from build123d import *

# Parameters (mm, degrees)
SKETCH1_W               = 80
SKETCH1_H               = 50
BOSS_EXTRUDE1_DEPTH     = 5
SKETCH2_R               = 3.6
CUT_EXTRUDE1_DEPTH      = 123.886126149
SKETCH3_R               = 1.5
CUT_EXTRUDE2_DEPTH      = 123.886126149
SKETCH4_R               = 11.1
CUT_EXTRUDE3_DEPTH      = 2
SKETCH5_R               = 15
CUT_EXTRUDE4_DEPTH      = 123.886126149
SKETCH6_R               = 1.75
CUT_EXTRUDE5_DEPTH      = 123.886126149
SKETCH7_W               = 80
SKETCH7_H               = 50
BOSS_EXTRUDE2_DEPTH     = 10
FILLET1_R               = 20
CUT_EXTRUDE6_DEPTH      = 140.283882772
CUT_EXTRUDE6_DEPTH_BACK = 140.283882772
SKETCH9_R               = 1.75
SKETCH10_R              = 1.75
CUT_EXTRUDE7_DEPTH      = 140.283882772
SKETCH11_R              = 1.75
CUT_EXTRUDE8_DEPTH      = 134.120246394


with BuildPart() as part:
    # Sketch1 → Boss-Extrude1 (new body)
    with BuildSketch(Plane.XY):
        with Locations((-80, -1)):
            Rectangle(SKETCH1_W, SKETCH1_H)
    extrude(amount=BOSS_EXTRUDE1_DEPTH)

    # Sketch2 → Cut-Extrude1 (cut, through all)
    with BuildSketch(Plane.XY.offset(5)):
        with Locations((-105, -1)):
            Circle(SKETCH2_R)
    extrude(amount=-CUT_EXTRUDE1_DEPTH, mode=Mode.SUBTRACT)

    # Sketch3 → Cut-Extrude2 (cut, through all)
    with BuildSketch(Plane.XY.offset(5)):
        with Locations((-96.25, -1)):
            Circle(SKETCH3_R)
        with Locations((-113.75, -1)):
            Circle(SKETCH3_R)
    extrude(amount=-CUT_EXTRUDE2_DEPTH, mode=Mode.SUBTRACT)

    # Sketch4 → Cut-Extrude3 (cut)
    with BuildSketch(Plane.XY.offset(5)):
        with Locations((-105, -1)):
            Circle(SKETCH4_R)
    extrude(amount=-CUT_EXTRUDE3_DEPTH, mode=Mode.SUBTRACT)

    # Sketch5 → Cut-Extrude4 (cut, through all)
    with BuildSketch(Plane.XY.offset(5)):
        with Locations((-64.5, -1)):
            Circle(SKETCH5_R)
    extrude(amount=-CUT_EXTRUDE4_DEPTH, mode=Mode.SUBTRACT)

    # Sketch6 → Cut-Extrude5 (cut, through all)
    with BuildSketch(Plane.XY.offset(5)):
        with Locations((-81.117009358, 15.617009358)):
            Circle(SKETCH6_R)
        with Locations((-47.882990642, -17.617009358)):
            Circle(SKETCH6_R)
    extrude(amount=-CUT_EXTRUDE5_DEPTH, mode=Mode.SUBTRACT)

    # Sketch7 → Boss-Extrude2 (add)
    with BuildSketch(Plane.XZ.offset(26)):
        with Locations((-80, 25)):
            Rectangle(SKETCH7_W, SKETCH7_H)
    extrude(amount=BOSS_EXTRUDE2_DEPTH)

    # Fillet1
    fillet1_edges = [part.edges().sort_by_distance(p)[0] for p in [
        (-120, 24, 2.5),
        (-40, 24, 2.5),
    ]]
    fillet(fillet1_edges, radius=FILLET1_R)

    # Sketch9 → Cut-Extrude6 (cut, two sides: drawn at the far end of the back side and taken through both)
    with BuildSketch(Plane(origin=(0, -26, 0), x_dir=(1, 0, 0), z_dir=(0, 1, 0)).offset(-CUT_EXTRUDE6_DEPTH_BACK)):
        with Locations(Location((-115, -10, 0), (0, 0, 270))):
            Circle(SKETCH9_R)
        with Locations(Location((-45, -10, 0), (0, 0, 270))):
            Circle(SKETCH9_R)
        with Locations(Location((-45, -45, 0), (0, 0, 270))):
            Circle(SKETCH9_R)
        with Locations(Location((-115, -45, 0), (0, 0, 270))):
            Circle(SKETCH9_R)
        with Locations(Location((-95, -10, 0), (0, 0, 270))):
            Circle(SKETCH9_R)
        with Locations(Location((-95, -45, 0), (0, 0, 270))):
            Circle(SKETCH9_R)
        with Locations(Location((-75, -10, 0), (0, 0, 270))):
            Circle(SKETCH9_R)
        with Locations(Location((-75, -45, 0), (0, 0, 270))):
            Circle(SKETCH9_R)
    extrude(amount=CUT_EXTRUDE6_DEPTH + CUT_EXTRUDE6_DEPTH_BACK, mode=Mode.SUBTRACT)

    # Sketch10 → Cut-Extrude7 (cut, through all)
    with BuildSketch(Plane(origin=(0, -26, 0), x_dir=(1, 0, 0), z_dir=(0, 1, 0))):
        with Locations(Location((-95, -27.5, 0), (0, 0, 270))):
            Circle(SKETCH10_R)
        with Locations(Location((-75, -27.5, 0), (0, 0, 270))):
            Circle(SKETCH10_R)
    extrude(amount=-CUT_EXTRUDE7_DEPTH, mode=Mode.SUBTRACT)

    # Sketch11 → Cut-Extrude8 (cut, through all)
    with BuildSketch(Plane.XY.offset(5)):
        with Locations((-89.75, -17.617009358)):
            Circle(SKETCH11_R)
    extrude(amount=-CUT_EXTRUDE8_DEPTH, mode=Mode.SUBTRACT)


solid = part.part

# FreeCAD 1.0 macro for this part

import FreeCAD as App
import Part
import Sketcher
Q = App.Units.Quantity


def edges_at(feature, points):
    """Names of the edges that pass closest to the given points."""
    edges = feature.Shape.Edges
    near = lambda p: min(range(len(edges)), key=lambda i: edges[i].distToShape(Part.Vertex(*p))[0])
    return sorted({f"Edge{near(p) + 1}" for p in points})


def add_polygon(sketch, points):
    """Adds a closed chain of lines whose ends are joined by coincident constraints."""
    first, n = sketch.GeometryCount, len(points)
    for a, b in zip(points, points[1:] + points[:1]):
        sketch.addGeometry(Part.LineSegment(App.Vector(*a, 0), App.Vector(*b, 0)), False)
    for i in range(n):
        sketch.addConstraint(Sketcher.Constraint("Coincident", first + i, 2, first + (i + 1) % n, 1))

doc = App.newDocument("Part")
params = doc.addObject("Spreadsheet::Sheet", "Params")
for row, (alias, value) in enumerate([
    ("sketch1_width", "80 mm"),
    ("sketch1_height", "50 mm"),
    ("pad1_length", "5 mm"),
    ("sketch2_diameter", "7.2 mm"),
    ("sketch3_diameter", "3 mm"),
    ("sketch4_diameter", "22.2 mm"),
    ("pocket3_length", "2 mm"),
    ("sketch5_diameter", "30 mm"),
    ("sketch6_diameter", "3.5 mm"),
    ("sketch7_width", "80 mm"),
    ("sketch7_height", "50 mm"),
    ("pad2_length", "10 mm"),
    ("fillet_radius", "20 mm"),
    ("sketch8_diameter", "3.5 mm"),
    ("sketch9_diameter", "3.5 mm"),
    ("sketch10_diameter", "3.5 mm"),
], start=1):
    params.set(f"A{row}", alias)
    params.set(f"B{row}", "=" + value)
    params.setAlias(f"B{row}", alias)

body = doc.addObject("PartDesign::Body", "Body")

# Sketch on XY plane
sketch1 = body.newObject("Sketcher::SketchObject", "Sketch")
sketch1.AttachmentSupport = (doc.getObject("XY_Plane"), [""])
sketch1.MapMode = "FlatFace"
add_polygon(sketch1, [(-120, 24), (-120, -26), (-40, -26), (-40, 24)])  # lines 0-3
sketch1.addConstraint(Sketcher.Constraint("Vertical", 0))
sketch1.addConstraint(Sketcher.Constraint("Horizontal", 1))
sketch1.addConstraint(Sketcher.Constraint("Vertical", 2))
sketch1.addConstraint(Sketcher.Constraint("Horizontal", 3))
sketch1.addConstraint(Sketcher.Constraint("DistanceX", 1, 1, 1, 2, Q("80 mm")))
sketch1.addConstraint(Sketcher.Constraint("DistanceY", 0, 2, 0, 1, Q("50 mm")))
sketch1.addConstraint(Sketcher.Constraint("DistanceX", 0, 2, -1, 1, Q("120 mm")))
sketch1.addConstraint(Sketcher.Constraint("DistanceY", 0, 2, -1, 1, Q("26 mm")))
sketch1.setExpression("Constraints[8]", "Params.sketch1_width")
sketch1.setExpression("Constraints[9]", "Params.sketch1_height")
pad1 = body.newObject("PartDesign::Pad", "Pad")
pad1.Profile = sketch1
pad1.setExpression("Length", "Params.pad1_length")

# Sketch on XY plane
sketch2 = body.newObject("Sketcher::SketchObject", "Sketch001")
sketch2.AttachmentSupport = (doc.getObject("XY_Plane"), [""])
sketch2.MapMode = "FlatFace"
sketch2.AttachmentOffset = App.Placement(App.Vector(0, 0, 5), App.Rotation())
sketch2.addGeometry(Part.Circle(App.Vector(-105, -1, 0), App.Vector(0, 0, 1), 3.6), False)
sketch2.addConstraint(Sketcher.Constraint("Diameter", 0, Q("7.2 mm")))
sketch2.addConstraint(Sketcher.Constraint("DistanceX", 0, 3, -1, 1, Q("105 mm")))
sketch2.addConstraint(Sketcher.Constraint("DistanceY", 0, 3, -1, 1, Q("1 mm")))
sketch2.setExpression("Constraints[0]", "Params.sketch2_diameter")
pocket1 = body.newObject("PartDesign::Pocket", "Pocket")
pocket1.Profile = sketch2
pocket1.Type = "ThroughAll"

# Sketch on XY plane
sketch3 = body.newObject("Sketcher::SketchObject", "Sketch002")
sketch3.AttachmentSupport = (doc.getObject("XY_Plane"), [""])
sketch3.MapMode = "FlatFace"
sketch3.AttachmentOffset = App.Placement(App.Vector(0, 0, 5), App.Rotation())
sketch3.addGeometry(Part.Circle(App.Vector(-96.25, -1, 0), App.Vector(0, 0, 1), 1.5), False)
sketch3.addGeometry(Part.Circle(App.Vector(-113.75, -1, 0), App.Vector(0, 0, 1), 1.5), False)
sketch3.addConstraint(Sketcher.Constraint("Equal", 0, 1))
sketch3.addConstraint(Sketcher.Constraint("Horizontal", 0, 3, 1, 3))
sketch3.addConstraint(Sketcher.Constraint("Diameter", 0, Q("3 mm")))
sketch3.addConstraint(Sketcher.Constraint("DistanceY", 0, 3, -1, 1, Q("1 mm")))
sketch3.addConstraint(Sketcher.Constraint("DistanceX", 1, 3, 0, 3, Q("17.5 mm")))
sketch3.addConstraint(Sketcher.Constraint("DistanceX", 0, 3, -1, 1, Q("96.25 mm")))
sketch3.setExpression("Constraints[2]", "Params.sketch3_diameter")
pocket2 = body.newObject("PartDesign::Pocket", "Pocket001")
pocket2.Profile = sketch3
pocket2.Type = "ThroughAll"

# Sketch on XY plane
sketch4 = body.newObject("Sketcher::SketchObject", "Sketch003")
sketch4.AttachmentSupport = (doc.getObject("XY_Plane"), [""])
sketch4.MapMode = "FlatFace"
sketch4.AttachmentOffset = App.Placement(App.Vector(0, 0, 5), App.Rotation())
sketch4.addGeometry(Part.Circle(App.Vector(-105, -1, 0), App.Vector(0, 0, 1), 11.1), False)
sketch4.addConstraint(Sketcher.Constraint("Diameter", 0, Q("22.2 mm")))
sketch4.addConstraint(Sketcher.Constraint("DistanceX", 0, 3, -1, 1, Q("105 mm")))
sketch4.addConstraint(Sketcher.Constraint("DistanceY", 0, 3, -1, 1, Q("1 mm")))
sketch4.setExpression("Constraints[0]", "Params.sketch4_diameter")
pocket3 = body.newObject("PartDesign::Pocket", "Pocket002")
pocket3.Profile = sketch4
pocket3.setExpression("Length", "Params.pocket3_length")

# Sketch on XY plane
sketch5 = body.newObject("Sketcher::SketchObject", "Sketch004")
sketch5.AttachmentSupport = (doc.getObject("XY_Plane"), [""])
sketch5.MapMode = "FlatFace"
sketch5.AttachmentOffset = App.Placement(App.Vector(0, 0, 5), App.Rotation())
sketch5.addGeometry(Part.Circle(App.Vector(-64.5, -1, 0), App.Vector(0, 0, 1), 15), False)
sketch5.addConstraint(Sketcher.Constraint("Diameter", 0, Q("30 mm")))
sketch5.addConstraint(Sketcher.Constraint("DistanceY", 0, 3, -1, 1, Q("1 mm")))
sketch5.addConstraint(Sketcher.Constraint("DistanceX", 0, 3, -1, 1, Q("64.5 mm")))
sketch5.setExpression("Constraints[0]", "Params.sketch5_diameter")
pocket4 = body.newObject("PartDesign::Pocket", "Pocket003")
pocket4.Profile = sketch5
pocket4.Type = "ThroughAll"

# Sketch on XY plane
sketch6 = body.newObject("Sketcher::SketchObject", "Sketch005")
sketch6.AttachmentSupport = (doc.getObject("XY_Plane"), [""])
sketch6.MapMode = "FlatFace"
sketch6.AttachmentOffset = App.Placement(App.Vector(0, 0, 5), App.Rotation())
sketch6.addGeometry(Part.Circle(App.Vector(-81.117009, 15.617009, 0), App.Vector(0, 0, 1), 1.75), False)
sketch6.addGeometry(Part.Circle(App.Vector(-47.882991, -17.617009, 0), App.Vector(0, 0, 1), 1.75), False)
sketch6.addConstraint(Sketcher.Constraint("Equal", 0, 1))
sketch6.addConstraint(Sketcher.Constraint("Diameter", 0, Q("3.5 mm")))
sketch6.addConstraint(Sketcher.Constraint("DistanceX", 0, 3, -1, 1, Q("81.117009 mm")))
sketch6.addConstraint(Sketcher.Constraint("DistanceY", -1, 1, 0, 3, Q("15.617009 mm")))
sketch6.addConstraint(Sketcher.Constraint("DistanceX", 1, 3, -1, 1, Q("47.882991 mm")))
sketch6.addConstraint(Sketcher.Constraint("DistanceY", 1, 3, -1, 1, Q("17.617009 mm")))
sketch6.setExpression("Constraints[1]", "Params.sketch6_diameter")
pocket5 = body.newObject("PartDesign::Pocket", "Pocket004")
pocket5.Profile = sketch6
pocket5.Type = "ThroughAll"

# Sketch on XZ plane
sketch7 = body.newObject("Sketcher::SketchObject", "Sketch006")
sketch7.AttachmentSupport = (doc.getObject("XZ_Plane"), [""])
sketch7.MapMode = "FlatFace"
sketch7.AttachmentOffset = App.Placement(App.Vector(0, 0, 26), App.Rotation())
add_polygon(sketch7, [(-120, 50), (-120, 0), (-40, 0), (-40, 50)])  # lines 0-3
sketch7.addConstraint(Sketcher.Constraint("Vertical", 0))
sketch7.addConstraint(Sketcher.Constraint("Horizontal", 1))
sketch7.addConstraint(Sketcher.Constraint("Vertical", 2))
sketch7.addConstraint(Sketcher.Constraint("Horizontal", 3))
sketch7.addConstraint(Sketcher.Constraint("PointOnObject", 0, 2, -1))
sketch7.addConstraint(Sketcher.Constraint("DistanceX", 1, 1, 1, 2, Q("80 mm")))
sketch7.addConstraint(Sketcher.Constraint("DistanceY", 0, 2, 0, 1, Q("50 mm")))
sketch7.addConstraint(Sketcher.Constraint("DistanceX", 0, 2, -1, 1, Q("120 mm")))
sketch7.setExpression("Constraints[9]", "Params.sketch7_width")
sketch7.setExpression("Constraints[10]", "Params.sketch7_height")
pad2 = body.newObject("PartDesign::Pad", "Pad001")
pad2.Profile = sketch7
pad2.setExpression("Length", "Params.pad2_length")
doc.recompute()

fillet = body.newObject("PartDesign::Fillet", "Fillet")
fillet.Base = (pad2, edges_at(pad2, [(-120, 24, 2.5), (-40, 24, 2.5)]))
fillet.setExpression("Radius", "Params.fillet_radius")

# Sketch on XZ plane
sketch8 = body.newObject("Sketcher::SketchObject", "Sketch007")
sketch8.AttachmentSupport = (doc.getObject("XZ_Plane"), [""])
sketch8.MapMode = "FlatFace"
sketch8.AttachmentOffset = App.Placement(App.Vector(0, 0, 26), App.Rotation())
sketch8.addGeometry(Part.Circle(App.Vector(-115, 10, 0), App.Vector(0, 0, 1), 1.75), False)
sketch8.addGeometry(Part.Circle(App.Vector(-45, 10, 0), App.Vector(0, 0, 1), 1.75), False)
sketch8.addGeometry(Part.Circle(App.Vector(-45, 45, 0), App.Vector(0, 0, 1), 1.75), False)
sketch8.addGeometry(Part.Circle(App.Vector(-115, 45, 0), App.Vector(0, 0, 1), 1.75), False)
sketch8.addGeometry(Part.Circle(App.Vector(-95, 10, 0), App.Vector(0, 0, 1), 1.75), False)
sketch8.addGeometry(Part.Circle(App.Vector(-95, 45, 0), App.Vector(0, 0, 1), 1.75), False)
sketch8.addGeometry(Part.Circle(App.Vector(-75, 10, 0), App.Vector(0, 0, 1), 1.75), False)
sketch8.addGeometry(Part.Circle(App.Vector(-75, 45, 0), App.Vector(0, 0, 1), 1.75), False)
sketch8.addConstraint(Sketcher.Constraint("Equal", 0, 1))
sketch8.addConstraint(Sketcher.Constraint("Equal", 1, 2))
sketch8.addConstraint(Sketcher.Constraint("Equal", 2, 3))
sketch8.addConstraint(Sketcher.Constraint("Equal", 3, 4))
sketch8.addConstraint(Sketcher.Constraint("Equal", 4, 5))
sketch8.addConstraint(Sketcher.Constraint("Equal", 5, 6))
sketch8.addConstraint(Sketcher.Constraint("Equal", 6, 7))
sketch8.addConstraint(Sketcher.Constraint("Horizontal", 0, 3, 1, 3))
sketch8.addConstraint(Sketcher.Constraint("Horizontal", 2, 3, 3, 3))
sketch8.addConstraint(Sketcher.Constraint("Horizontal", 1, 3, 4, 3))
sketch8.addConstraint(Sketcher.Constraint("Horizontal", 3, 3, 5, 3))
sketch8.addConstraint(Sketcher.Constraint("Horizontal", 4, 3, 6, 3))
sketch8.addConstraint(Sketcher.Constraint("Horizontal", 5, 3, 7, 3))
sketch8.addConstraint(Sketcher.Constraint("Vertical", 1, 3, 2, 3))
sketch8.addConstraint(Sketcher.Constraint("Vertical", 0, 3, 3, 3))
sketch8.addConstraint(Sketcher.Constraint("Vertical", 4, 3, 5, 3))
sketch8.addConstraint(Sketcher.Constraint("Vertical", 6, 3, 7, 3))
sketch8.addConstraint(Sketcher.Constraint("Diameter", 0, Q("3.5 mm")))
sketch8.addConstraint(Sketcher.Constraint("DistanceX", 0, 3, -1, 1, Q("115 mm")))
sketch8.addConstraint(Sketcher.Constraint("DistanceY", -1, 1, 0, 3, Q("10 mm")))
sketch8.addConstraint(Sketcher.Constraint("DistanceX", 1, 3, -1, 1, Q("45 mm")))
sketch8.addConstraint(Sketcher.Constraint("DistanceY", -1, 1, 2, 3, Q("45 mm")))
sketch8.addConstraint(Sketcher.Constraint("DistanceX", 4, 3, -1, 1, Q("95 mm")))
sketch8.addConstraint(Sketcher.Constraint("DistanceX", 6, 3, -1, 1, Q("75 mm")))
sketch8.setExpression("Constraints[17]", "Params.sketch8_diameter")
pocket6 = body.newObject("PartDesign::Pocket", "Pocket005")
pocket6.Profile = sketch8
pocket6.Type = "ThroughAll"
pocket6.Midplane = True

# Sketch on XZ plane
sketch9 = body.newObject("Sketcher::SketchObject", "Sketch008")
sketch9.AttachmentSupport = (doc.getObject("XZ_Plane"), [""])
sketch9.MapMode = "FlatFace"
sketch9.AttachmentOffset = App.Placement(App.Vector(0, 0, 26), App.Rotation())
sketch9.addGeometry(Part.Circle(App.Vector(-95, 27.5, 0), App.Vector(0, 0, 1), 1.75), False)
sketch9.addGeometry(Part.Circle(App.Vector(-75, 27.5, 0), App.Vector(0, 0, 1), 1.75), False)
sketch9.addConstraint(Sketcher.Constraint("Equal", 0, 1))
sketch9.addConstraint(Sketcher.Constraint("Horizontal", 0, 3, 1, 3))
sketch9.addConstraint(Sketcher.Constraint("Diameter", 0, Q("3.5 mm")))
sketch9.addConstraint(Sketcher.Constraint("DistanceX", 0, 3, -1, 1, Q("95 mm")))
sketch9.addConstraint(Sketcher.Constraint("DistanceX", 1, 3, -1, 1, Q("75 mm")))
sketch9.addConstraint(Sketcher.Constraint("DistanceY", -1, 1, 0, 3, Q("27.5 mm")))
sketch9.setExpression("Constraints[2]", "Params.sketch9_diameter")
pocket7 = body.newObject("PartDesign::Pocket", "Pocket006")
pocket7.Profile = sketch9
pocket7.Type = "ThroughAll"
pocket7.Reversed = True

# Sketch on XY plane
sketch10 = body.newObject("Sketcher::SketchObject", "Sketch009")
sketch10.AttachmentSupport = (doc.getObject("XY_Plane"), [""])
sketch10.MapMode = "FlatFace"
sketch10.AttachmentOffset = App.Placement(App.Vector(0, 0, 5), App.Rotation())
sketch10.addGeometry(Part.Circle(App.Vector(-89.75, -17.617009, 0), App.Vector(0, 0, 1), 1.75), False)
sketch10.addConstraint(Sketcher.Constraint("Diameter", 0, Q("3.5 mm")))
sketch10.addConstraint(Sketcher.Constraint("DistanceX", 0, 3, -1, 1, Q("89.75 mm")))
sketch10.addConstraint(Sketcher.Constraint("DistanceY", 0, 3, -1, 1, Q("17.617009 mm")))
sketch10.setExpression("Constraints[0]", "Params.sketch10_diameter")
pocket8 = body.newObject("PartDesign::Pocket", "Pocket007")
pocket8.Profile = sketch10
pocket8.Type = "ThroughAll"

doc.recompute()
